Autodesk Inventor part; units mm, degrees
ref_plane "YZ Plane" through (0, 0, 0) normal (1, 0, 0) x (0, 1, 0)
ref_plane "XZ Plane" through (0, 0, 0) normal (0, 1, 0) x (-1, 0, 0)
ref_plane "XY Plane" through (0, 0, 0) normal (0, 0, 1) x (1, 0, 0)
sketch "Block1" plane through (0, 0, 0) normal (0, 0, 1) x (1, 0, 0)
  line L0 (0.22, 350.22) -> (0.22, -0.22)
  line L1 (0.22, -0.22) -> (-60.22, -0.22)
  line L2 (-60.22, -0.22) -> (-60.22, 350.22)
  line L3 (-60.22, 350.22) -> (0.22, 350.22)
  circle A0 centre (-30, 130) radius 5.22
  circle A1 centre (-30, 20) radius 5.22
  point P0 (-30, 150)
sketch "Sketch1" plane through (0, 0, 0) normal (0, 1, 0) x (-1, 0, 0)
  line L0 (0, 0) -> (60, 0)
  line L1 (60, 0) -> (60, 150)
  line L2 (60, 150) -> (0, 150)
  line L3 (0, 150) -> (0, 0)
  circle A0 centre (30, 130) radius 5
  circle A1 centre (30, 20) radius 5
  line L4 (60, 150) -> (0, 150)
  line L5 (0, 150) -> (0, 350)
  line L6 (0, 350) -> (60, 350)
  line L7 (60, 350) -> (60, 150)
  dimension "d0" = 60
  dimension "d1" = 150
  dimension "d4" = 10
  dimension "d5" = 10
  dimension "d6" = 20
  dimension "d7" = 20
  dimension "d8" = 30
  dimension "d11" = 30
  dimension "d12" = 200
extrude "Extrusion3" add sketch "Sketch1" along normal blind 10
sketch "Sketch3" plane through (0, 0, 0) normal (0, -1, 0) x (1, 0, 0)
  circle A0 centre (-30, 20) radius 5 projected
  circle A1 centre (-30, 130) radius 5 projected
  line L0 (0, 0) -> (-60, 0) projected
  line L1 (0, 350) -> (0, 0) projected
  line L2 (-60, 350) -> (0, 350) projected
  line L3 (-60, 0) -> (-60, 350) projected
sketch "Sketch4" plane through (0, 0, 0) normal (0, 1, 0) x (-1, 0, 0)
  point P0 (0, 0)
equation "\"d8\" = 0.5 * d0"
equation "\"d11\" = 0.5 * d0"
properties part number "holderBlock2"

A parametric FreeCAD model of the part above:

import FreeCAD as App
import Part
import Sketcher
from FreeCAD import Vector
Q = App.Units.Quantity


def add_polygon(sketch, points):
    """Adds a closed chain of lines whose ends are joined by coincident constraints."""
    first, n = sketch.GeometryCount, len(points)
    for a, b in zip(points, points[1:] + points[:1]):
        sketch.addGeometry(Part.LineSegment(App.Vector(*a, 0), App.Vector(*b, 0)), False)
    for i in range(n):
        sketch.addConstraint(Sketcher.Constraint("Coincident", first + i, 2, first + (i + 1) % n, 1))

doc = App.newDocument("Part")
body = doc.addObject("PartDesign::Body", "Body")

# Sketch on XZ plane
sketch1 = doc.addObject("Sketcher::SketchObject", "Sketch")
body.addObject(sketch1)
sketch1.AttachmentSupport = (doc.XZ_Plane, [""])
sketch1.MapMode = "FlatFace"
add_polygon(sketch1, [(0, 0), (-60, 0), (-60, 350), (0, 350)])  # lines 0-3
sketch1.addGeometry(Part.Circle(Vector(-30, 20, 0), Vector(0, 0, 1), 5), False)  # 4
sketch1.addGeometry(Part.Circle(Vector(-30, 130, 0), Vector(0, 0, 1), 5), False)  # 5
sketch1.addConstraint([
    Sketcher.Constraint("Horizontal", 0),
    Sketcher.Constraint("Vertical", 1),
    Sketcher.Constraint("Horizontal", 2),
    Sketcher.Constraint("Vertical", 3),
    Sketcher.Constraint("Coincident", 3, 2, -1, 1),
    Sketcher.Constraint("Equal", 4, 5),
    Sketcher.Constraint("Vertical", 4, 3, 5, 3),
    Sketcher.Constraint("Diameter", 4, Q("10 mm")),
    Sketcher.Constraint("DistanceX", 0, 2, 0, 1, Q("60 mm")),
    Sketcher.Constraint("DistanceX", 4, 3, -1, 1, Q("30 mm")),
    Sketcher.Constraint("DistanceY", -1, 1, 4, 3, Q("20 mm")),
    Sketcher.Constraint("DistanceY", 1, 1, 1, 2, Q("350 mm")),
    Sketcher.Constraint("DistanceY", -1, 1, 5, 3, Q("130 mm")),
])
pad1 = doc.addObject("PartDesign::Pad", "Pad")
body.addObject(pad1)
pad1.Profile = sketch1
pad1.Length = 10
pad1.Reversed = True

doc.recompute()
